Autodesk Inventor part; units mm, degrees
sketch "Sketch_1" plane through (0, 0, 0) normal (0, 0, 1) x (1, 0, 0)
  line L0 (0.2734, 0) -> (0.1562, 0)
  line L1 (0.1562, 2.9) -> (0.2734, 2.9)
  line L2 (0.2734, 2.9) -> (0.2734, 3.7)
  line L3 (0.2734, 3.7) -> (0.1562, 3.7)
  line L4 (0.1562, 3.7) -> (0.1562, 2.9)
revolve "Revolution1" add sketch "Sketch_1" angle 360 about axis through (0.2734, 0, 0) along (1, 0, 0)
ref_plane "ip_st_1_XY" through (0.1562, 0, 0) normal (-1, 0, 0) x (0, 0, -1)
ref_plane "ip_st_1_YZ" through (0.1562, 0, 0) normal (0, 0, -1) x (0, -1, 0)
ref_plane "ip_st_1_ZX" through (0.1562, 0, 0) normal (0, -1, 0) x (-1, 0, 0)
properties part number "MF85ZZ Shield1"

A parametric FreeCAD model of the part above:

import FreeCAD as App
import Part
import Sketcher
Q = App.Units.Quantity

doc = App.newDocument("Part")
params = doc.addObject("Spreadsheet::Sheet", "Params")
for row, (alias, value) in enumerate([
    ("sketch1_height", "0.8 mm"),
    ("revolution_angle", "360 deg"),
], start=1):
    params.set(f"A{row}", alias)
    params.set(f"B{row}", "=" + value)
    params.setAlias(f"B{row}", alias)

body = doc.addObject("PartDesign::Body", "Body")

# Sketch on XY plane
sketch1 = doc.addObject("Sketcher::SketchObject", "Sketch")
body.addObject(sketch1)
sketch1.AttachmentSupport = (doc.XY_Plane, [""])
sketch1.MapMode = "FlatFace"
sketch1.addGeometry([
    Part.LineSegment(App.Vector(0.16, 3.7, 0), App.Vector(0.16, 2.9, 0)),
    Part.LineSegment(App.Vector(0.16, 2.9, 0), App.Vector(0.27, 2.9, 0)),
    Part.LineSegment(App.Vector(0.27, 2.9, 0), App.Vector(0.27, 3.7, 0)),
    Part.LineSegment(App.Vector(0.27, 3.7, 0), App.Vector(0.16, 3.7, 0)),
], False)
sketch1.addConstraint([
    Sketcher.Constraint("Coincident", 0, 2, 1, 1),
    Sketcher.Constraint("Coincident", 1, 2, 2, 1),
    Sketcher.Constraint("Coincident", 2, 2, 3, 1),
    Sketcher.Constraint("Coincident", 3, 2, 0, 1),
    Sketcher.Constraint("Vertical", 0),
    Sketcher.Constraint("Horizontal", 1),
    Sketcher.Constraint("Vertical", 2),
    Sketcher.Constraint("Horizontal", 3),
    Sketcher.Constraint("DistanceY", 0, 2, 0, 1, Q("0.8 mm")),
    Sketcher.Constraint("DistanceY", -1, 1, 0, 2, Q("2.9 mm")),
    Sketcher.Constraint("DistanceX", 1, 1, 1, 2, Q("0.1172 mm")),
    Sketcher.Constraint("DistanceX", -1, 1, 0, 2, Q("0.1562 mm")),
])
sketch1.setExpression("Constraints[8]", "Params.sketch1_height")
revolution = doc.addObject("PartDesign::Revolution", "Revolution")
body.addObject(revolution)
revolution.Profile = sketch1
revolution.ReferenceAxis = (sketch1, ["H_Axis"])
revolution.setExpression("Angle", "Params.revolution_angle")

doc.recompute()
